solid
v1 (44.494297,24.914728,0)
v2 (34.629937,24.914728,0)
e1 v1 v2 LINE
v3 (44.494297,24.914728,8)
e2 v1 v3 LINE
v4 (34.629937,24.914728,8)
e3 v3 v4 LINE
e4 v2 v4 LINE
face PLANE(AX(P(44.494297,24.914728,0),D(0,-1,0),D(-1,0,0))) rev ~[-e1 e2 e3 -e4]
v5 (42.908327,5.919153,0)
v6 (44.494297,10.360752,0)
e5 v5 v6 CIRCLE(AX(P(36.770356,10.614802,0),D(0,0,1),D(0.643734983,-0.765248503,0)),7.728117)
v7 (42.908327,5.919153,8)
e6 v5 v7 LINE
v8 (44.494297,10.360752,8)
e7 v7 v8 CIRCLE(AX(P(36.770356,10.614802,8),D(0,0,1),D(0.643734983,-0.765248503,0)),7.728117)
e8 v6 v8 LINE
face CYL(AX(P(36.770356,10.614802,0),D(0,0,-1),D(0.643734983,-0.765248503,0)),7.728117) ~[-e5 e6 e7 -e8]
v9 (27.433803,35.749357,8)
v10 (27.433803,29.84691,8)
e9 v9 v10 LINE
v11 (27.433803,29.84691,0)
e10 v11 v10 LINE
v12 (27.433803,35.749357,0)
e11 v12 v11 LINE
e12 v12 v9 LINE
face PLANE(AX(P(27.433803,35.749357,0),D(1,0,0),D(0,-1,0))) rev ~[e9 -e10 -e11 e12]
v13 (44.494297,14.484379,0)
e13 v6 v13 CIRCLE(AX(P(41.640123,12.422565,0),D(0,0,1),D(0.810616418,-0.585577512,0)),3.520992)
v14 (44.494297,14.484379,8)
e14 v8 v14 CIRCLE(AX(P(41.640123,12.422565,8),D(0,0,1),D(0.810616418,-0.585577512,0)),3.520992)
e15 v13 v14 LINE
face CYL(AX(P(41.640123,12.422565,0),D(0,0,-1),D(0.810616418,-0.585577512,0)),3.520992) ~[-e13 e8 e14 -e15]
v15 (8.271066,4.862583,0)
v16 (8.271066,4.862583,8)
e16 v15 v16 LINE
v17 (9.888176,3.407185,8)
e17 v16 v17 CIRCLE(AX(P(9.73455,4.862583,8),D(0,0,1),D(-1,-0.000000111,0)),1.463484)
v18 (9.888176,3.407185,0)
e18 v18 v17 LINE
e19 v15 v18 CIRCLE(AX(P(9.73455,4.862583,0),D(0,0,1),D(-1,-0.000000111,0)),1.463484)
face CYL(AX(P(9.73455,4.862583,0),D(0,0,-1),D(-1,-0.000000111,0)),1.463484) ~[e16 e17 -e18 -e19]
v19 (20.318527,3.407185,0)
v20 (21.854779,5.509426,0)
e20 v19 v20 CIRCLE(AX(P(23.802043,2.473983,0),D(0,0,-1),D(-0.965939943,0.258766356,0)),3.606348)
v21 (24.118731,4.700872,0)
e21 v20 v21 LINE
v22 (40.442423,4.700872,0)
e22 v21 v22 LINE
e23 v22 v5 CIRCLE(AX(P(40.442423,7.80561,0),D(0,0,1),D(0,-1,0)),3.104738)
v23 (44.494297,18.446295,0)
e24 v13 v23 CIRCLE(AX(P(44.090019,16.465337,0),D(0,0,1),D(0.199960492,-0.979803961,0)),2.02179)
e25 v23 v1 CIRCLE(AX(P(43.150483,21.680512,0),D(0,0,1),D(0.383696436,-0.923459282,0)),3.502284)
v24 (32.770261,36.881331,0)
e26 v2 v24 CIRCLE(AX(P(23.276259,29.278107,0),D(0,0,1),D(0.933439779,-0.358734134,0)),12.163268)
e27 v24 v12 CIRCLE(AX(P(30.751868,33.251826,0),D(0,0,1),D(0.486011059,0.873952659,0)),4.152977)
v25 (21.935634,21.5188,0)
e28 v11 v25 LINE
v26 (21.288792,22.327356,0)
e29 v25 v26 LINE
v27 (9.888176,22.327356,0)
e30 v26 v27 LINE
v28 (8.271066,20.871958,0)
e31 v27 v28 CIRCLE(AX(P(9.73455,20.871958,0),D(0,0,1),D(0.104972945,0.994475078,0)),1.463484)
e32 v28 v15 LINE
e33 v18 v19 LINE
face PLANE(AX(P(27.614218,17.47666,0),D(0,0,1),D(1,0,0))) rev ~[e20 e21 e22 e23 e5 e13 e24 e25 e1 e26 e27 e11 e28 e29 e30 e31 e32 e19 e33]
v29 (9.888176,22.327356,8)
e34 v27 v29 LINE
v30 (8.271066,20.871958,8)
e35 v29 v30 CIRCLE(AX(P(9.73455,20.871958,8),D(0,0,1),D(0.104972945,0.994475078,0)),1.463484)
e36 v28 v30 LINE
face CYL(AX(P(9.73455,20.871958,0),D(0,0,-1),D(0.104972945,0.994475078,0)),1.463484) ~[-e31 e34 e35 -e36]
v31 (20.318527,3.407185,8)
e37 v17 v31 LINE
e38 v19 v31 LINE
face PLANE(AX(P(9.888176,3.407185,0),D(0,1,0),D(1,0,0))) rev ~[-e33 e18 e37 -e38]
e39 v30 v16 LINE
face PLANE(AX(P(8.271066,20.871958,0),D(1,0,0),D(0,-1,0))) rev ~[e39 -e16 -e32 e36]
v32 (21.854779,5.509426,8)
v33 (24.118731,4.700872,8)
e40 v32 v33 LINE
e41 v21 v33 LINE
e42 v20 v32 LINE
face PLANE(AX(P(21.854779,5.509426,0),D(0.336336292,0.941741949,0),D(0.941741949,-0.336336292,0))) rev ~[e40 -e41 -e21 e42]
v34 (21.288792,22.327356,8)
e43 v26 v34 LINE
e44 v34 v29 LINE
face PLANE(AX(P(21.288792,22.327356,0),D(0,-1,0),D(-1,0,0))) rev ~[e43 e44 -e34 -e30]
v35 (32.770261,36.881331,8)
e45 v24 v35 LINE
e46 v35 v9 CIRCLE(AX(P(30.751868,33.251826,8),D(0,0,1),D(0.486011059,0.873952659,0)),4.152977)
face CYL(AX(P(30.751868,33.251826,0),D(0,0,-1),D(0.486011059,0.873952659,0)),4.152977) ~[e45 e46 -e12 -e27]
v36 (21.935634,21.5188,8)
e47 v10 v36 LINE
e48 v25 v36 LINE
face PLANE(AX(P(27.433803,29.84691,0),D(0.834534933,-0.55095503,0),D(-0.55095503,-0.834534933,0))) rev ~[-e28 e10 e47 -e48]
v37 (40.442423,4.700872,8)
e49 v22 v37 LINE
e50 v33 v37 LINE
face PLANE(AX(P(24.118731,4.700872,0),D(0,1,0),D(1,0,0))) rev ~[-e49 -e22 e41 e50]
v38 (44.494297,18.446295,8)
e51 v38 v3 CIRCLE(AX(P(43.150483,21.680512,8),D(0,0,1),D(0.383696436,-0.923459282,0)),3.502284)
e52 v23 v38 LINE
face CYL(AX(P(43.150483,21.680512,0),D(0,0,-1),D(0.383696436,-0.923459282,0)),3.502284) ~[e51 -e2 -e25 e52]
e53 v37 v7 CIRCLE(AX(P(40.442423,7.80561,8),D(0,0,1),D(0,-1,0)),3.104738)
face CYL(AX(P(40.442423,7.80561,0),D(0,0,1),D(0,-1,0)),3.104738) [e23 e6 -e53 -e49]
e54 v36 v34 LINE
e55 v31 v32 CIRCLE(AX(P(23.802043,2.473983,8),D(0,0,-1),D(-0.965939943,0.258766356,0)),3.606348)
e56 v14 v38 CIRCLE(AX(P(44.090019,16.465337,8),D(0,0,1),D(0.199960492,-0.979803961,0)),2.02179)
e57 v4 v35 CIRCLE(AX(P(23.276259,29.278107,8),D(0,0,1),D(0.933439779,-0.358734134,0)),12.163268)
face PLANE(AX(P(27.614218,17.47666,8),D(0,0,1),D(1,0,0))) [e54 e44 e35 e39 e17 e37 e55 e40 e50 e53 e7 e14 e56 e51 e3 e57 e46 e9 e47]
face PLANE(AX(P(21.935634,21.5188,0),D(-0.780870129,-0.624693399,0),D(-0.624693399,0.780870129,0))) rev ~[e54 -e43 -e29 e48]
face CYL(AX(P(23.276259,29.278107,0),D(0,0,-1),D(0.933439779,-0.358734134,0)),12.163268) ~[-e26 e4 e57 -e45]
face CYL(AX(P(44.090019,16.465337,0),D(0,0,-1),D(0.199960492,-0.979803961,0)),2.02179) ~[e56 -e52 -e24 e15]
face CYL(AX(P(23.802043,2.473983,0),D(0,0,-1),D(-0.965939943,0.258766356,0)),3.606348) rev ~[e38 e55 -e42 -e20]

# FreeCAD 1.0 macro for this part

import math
import FreeCAD as App
import Part
import Sketcher


def edges_at(feature, points):
    """Names of the edges that pass closest to the given points."""
    edges = feature.Shape.Edges
    near = lambda p: min(range(len(edges)), key=lambda i: edges[i].distToShape(Part.Vertex(*p))[0])
    return sorted({f"Edge{near(p) + 1}" for p in points})

doc = App.newDocument("Part")
body = doc.addObject("PartDesign::Body", "Body")

# Sketch on XY plane
sketch1 = body.newObject("Sketcher::SketchObject", "Sketch")
sketch1.AttachmentSupport = (doc.getObject("XY_Plane"), [""])
sketch1.MapMode = "FlatFace"
sketch1.addGeometry([
    Part.ArcOfCircle(Part.Circle(App.Vector(9.7, 20.9, 0), App.Vector(0, 0, 1), 1.5), math.radians(84), math.radians(180)),  # 0
    Part.LineSegment(App.Vector(8.3, 20.9, 0), App.Vector(8.3, 4.9, 0)),  # 1
    Part.ArcOfCircle(Part.Circle(App.Vector(9.7, 4.9, 0), App.Vector(0, 0, 1), 1.5), math.radians(-180), math.radians(-84)),  # 2
    Part.LineSegment(App.Vector(9.9, 3.4, 0), App.Vector(20.3, 3.4, 0)),  # 3
    Part.ArcOfCircle(Part.Circle(App.Vector(23.8, 2.5, 0), App.Vector(0, 0, 1), 3.6), math.radians(123), math.radians(165)),  # 4
    Part.LineSegment(App.Vector(21.9, 5.5, 0), App.Vector(24.1, 4.7, 0)),  # 5
    Part.LineSegment(App.Vector(24.1, 4.7, 0), App.Vector(41.7, 4.7, 0)),  # 6
    Part.ArcOfCircle(Part.Circle(App.Vector(36.8, 10.6, 0), App.Vector(0, 0, 1), 7.7), math.radians(-50), math.radians(-2)),  # 7
    Part.ArcOfCircle(Part.Circle(App.Vector(41.6, 12.4, 0), App.Vector(0, 0, 1), 3.5), math.radians(-36), math.radians(36)),  # 8
    Part.ArcOfCircle(Part.Circle(App.Vector(44.1, 16.5, 0), App.Vector(0, 0, 1), 2), math.radians(-78), math.radians(78)),  # 9
    Part.ArcOfCircle(Part.Circle(App.Vector(43.2, 21.7, 0), App.Vector(0, 0, 1), 3.5), math.radians(-67), math.radians(67)),  # 10
    Part.LineSegment(App.Vector(44.5, 24.9, 0), App.Vector(34.6, 24.9, 0)),  # 11
    Part.ArcOfCircle(Part.Circle(App.Vector(23.3, 29.3, 0), App.Vector(0, 0, 1), 12.2), math.radians(-21), math.radians(39)),  # 12
    Part.ArcOfCircle(Part.Circle(App.Vector(30.8, 33.3, 0), App.Vector(0, 0, 1), 4.2), math.radians(61), math.radians(143)),  # 13
    Part.LineSegment(App.Vector(27.4, 35.7, 0), App.Vector(27.4, 29.8, 0)),  # 14
    Part.LineSegment(App.Vector(27.4, 29.8, 0), App.Vector(21.9, 21.5, 0)),  # 15
    Part.LineSegment(App.Vector(21.9, 21.5, 0), App.Vector(21.3, 22.3, 0)),  # 16
    Part.LineSegment(App.Vector(21.3, 22.3, 0), App.Vector(9.9, 22.3, 0)),  # 17
], False)
sketch1.addConstraint([
    Sketcher.Constraint("Tangent", 0, 2, 1, 1),
    Sketcher.Constraint("Tangent", 1, 2, 2, 1),
    Sketcher.Constraint("Coincident", 2, 2, 3, 1),
    Sketcher.Constraint("Coincident", 3, 2, 4, 2),
    Sketcher.Constraint("Coincident", 4, 1, 5, 1),
    Sketcher.Constraint("Coincident", 5, 2, 6, 1),
    Sketcher.Constraint("Coincident", 6, 2, 7, 1),
    Sketcher.Constraint("Coincident", 7, 2, 8, 1),
    Sketcher.Constraint("Coincident", 8, 2, 9, 1),
    Sketcher.Constraint("Coincident", 9, 2, 10, 1),
    Sketcher.Constraint("Coincident", 10, 2, 11, 1),
    Sketcher.Constraint("Coincident", 11, 2, 12, 1),
    Sketcher.Constraint("Coincident", 12, 2, 13, 1),
    Sketcher.Constraint("Coincident", 13, 2, 14, 1),
    Sketcher.Constraint("Coincident", 14, 2, 15, 1),
    Sketcher.Constraint("Coincident", 15, 2, 16, 1),
    Sketcher.Constraint("Coincident", 16, 2, 17, 1),
    Sketcher.Constraint("Coincident", 17, 2, 0, 1),
    Sketcher.Constraint("Vertical", 1),
    Sketcher.Constraint("Horizontal", 3),
    Sketcher.Constraint("Horizontal", 6),
    Sketcher.Constraint("Horizontal", 11),
    Sketcher.Constraint("Vertical", 14),
    Sketcher.Constraint("Horizontal", 17),
    Sketcher.Constraint("Equal", 0, 2),
    Sketcher.Constraint("Vertical", 7, 2, 8, 2),
    Sketcher.Constraint("Vertical", 8, 2, 9, 2),
    Sketcher.Constraint("Vertical", 9, 2, 10, 2),
    Sketcher.Constraint("Vertical", 2, 2, 17, 2),
    Sketcher.Constraint("Radius", 4, 3.606348),
    Sketcher.Constraint("Radius", 8, 3.520992),
    Sketcher.Constraint("Radius", 9, 2.02179),
    Sketcher.Constraint("Radius", 0, 1.463484),
    Sketcher.Constraint("Radius", 7, 7.728117),
    Sketcher.Constraint("Radius", 10, 3.502284),
    Sketcher.Constraint("Radius", 12, 12.163268),
    Sketcher.Constraint("Radius", 13, 4.152977),
    Sketcher.Constraint("DistanceX", 3, 1, 3, 2, 10.430351),
    Sketcher.Constraint("DistanceX", 11, 2, 11, 1, 9.86436),
    Sketcher.Constraint("DistanceY", -1, 1, 15, 2, 21.5188),
    Sketcher.Constraint("DistanceY", 4, 3, 2, 3, 2.3886),
    Sketcher.Constraint("DistanceY", 2, 2, 2, 3, 1.455398),
    Sketcher.Constraint("DistanceX", 6, 1, 6, 2, 17.626485),
    Sketcher.Constraint("DistanceX", 17, 2, 17, 1, 11.400616),
    Sketcher.Constraint("DistanceY", 1, 2, 1, 1, 16.009375),
    Sketcher.Constraint("DistanceY", 14, 2, 14, 1, 5.902447),
    Sketcher.Constraint("DistanceX", -1, 1, 0, 3, 9.73455),
    Sketcher.Constraint("DistanceX", -1, 1, 9, 3, 44.090019),
    Sketcher.Constraint("DistanceY", -1, 1, 10, 3, 21.680512),
    Sketcher.Constraint("DistanceX", -1, 1, 12, 3, 23.276259),
    Sketcher.Constraint("DistanceX", -1, 1, 13, 3, 30.751868),
    Sketcher.Constraint("DistanceX", -1, 1, 4, 1, 21.854779),
    Sketcher.Constraint("DistanceX", -1, 1, 5, 2, 24.118731),
    Sketcher.Constraint("DistanceY", -1, 1, 8, 2, 14.484379),
    Sketcher.Constraint("DistanceY", -1, 1, 11, 2, 24.914728),
    Sketcher.Constraint("DistanceX", -1, 1, 12, 2, 32.770261),
    Sketcher.Constraint("DistanceY", -1, 1, 14, 2, 29.84691),
    Sketcher.Constraint("DistanceY", 4, 3, 7, 3, 8.140819),
    Sketcher.Constraint("DistanceX", 4, 3, 8, 3, 17.83808),
    Sketcher.Constraint("DistanceY", 9, 3, 0, 3, 4.406621),
    Sketcher.Constraint("DistanceX", 15, 2, 14, 2, 5.498169),
])
pad1 = body.newObject("PartDesign::Pad", "Pad")
pad1.Profile = sketch1
pad1.Length = 8
doc.recompute()

fillet = body.newObject("PartDesign::Fillet", "Fillet")
fillet.Base = (pad1, edges_at(pad1, [(41.745, 4.701, 4)]))
fillet.Radius = 3.104738

doc.recompute()
